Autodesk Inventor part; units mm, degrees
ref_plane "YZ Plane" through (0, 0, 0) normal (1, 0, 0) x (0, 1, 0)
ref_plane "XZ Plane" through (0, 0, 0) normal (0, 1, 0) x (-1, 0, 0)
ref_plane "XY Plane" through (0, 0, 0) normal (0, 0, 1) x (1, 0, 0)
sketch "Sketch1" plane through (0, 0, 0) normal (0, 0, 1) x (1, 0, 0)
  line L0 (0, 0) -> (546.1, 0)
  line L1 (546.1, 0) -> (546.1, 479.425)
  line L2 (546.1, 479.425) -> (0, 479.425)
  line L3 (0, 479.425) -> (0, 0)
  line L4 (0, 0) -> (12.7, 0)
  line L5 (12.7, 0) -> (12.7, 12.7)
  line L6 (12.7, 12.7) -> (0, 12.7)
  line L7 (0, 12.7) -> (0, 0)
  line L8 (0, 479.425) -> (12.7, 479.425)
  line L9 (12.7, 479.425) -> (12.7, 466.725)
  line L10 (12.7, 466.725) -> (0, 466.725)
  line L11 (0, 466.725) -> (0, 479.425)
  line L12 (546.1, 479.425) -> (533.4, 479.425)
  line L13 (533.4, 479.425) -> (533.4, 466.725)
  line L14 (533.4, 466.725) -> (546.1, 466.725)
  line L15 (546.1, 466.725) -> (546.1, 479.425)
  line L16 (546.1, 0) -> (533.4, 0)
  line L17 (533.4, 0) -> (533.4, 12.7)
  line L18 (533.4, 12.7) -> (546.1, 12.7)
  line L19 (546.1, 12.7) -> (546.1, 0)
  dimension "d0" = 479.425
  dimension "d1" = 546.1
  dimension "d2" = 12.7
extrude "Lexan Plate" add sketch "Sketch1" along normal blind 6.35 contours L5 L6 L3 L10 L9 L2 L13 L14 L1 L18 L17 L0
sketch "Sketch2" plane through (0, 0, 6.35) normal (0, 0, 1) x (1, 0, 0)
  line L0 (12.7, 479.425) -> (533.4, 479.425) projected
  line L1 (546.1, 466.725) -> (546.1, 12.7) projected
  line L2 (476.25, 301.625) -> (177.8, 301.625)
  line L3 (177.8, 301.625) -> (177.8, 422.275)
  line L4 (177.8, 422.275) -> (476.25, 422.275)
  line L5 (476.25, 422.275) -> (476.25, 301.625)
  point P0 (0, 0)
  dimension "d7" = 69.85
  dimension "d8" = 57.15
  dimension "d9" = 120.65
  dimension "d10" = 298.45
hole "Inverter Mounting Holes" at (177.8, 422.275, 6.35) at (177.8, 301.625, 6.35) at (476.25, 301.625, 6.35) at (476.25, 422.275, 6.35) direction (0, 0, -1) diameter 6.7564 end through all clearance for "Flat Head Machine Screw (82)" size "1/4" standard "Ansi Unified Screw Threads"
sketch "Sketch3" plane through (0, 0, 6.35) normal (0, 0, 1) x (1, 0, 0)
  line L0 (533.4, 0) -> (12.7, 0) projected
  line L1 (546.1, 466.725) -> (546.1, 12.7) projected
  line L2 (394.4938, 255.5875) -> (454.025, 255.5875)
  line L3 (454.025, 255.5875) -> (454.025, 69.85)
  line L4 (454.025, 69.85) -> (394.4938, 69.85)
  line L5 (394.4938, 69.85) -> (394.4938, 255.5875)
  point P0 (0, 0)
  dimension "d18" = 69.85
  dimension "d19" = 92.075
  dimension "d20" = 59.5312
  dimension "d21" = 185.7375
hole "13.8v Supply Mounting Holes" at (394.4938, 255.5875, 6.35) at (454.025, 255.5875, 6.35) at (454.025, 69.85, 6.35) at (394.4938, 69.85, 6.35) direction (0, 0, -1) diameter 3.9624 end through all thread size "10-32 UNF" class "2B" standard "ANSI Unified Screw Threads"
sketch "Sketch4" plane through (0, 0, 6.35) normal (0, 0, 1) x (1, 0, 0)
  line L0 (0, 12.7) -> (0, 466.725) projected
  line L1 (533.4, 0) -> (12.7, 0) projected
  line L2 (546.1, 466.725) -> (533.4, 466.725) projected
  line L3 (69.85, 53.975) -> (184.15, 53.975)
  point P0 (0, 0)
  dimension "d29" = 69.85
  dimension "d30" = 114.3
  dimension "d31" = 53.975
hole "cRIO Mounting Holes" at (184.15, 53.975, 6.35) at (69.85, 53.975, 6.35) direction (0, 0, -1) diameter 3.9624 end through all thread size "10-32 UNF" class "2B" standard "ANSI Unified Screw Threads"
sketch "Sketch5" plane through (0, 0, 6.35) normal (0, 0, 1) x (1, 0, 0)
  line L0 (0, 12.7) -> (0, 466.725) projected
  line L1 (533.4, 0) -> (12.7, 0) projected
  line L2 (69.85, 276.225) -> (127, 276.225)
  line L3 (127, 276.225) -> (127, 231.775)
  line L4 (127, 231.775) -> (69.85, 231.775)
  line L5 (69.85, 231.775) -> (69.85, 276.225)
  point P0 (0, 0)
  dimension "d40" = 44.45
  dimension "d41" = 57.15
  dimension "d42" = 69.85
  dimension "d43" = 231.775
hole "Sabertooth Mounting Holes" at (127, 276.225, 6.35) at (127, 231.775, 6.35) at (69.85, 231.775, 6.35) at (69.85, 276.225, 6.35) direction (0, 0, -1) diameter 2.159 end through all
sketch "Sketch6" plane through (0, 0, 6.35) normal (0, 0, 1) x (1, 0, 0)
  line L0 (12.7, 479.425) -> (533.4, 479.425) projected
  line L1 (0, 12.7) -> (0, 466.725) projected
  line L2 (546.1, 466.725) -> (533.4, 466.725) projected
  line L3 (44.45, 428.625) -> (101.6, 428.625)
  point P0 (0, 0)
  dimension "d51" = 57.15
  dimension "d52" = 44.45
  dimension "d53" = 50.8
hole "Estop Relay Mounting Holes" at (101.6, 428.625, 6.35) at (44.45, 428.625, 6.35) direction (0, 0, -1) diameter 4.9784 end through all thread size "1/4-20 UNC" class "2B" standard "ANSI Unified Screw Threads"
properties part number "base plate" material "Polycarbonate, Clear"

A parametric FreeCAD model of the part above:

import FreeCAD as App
import Part
import Sketcher
from FreeCAD import Vector
Q = App.Units.Quantity


def add_polygon(sketch, points):
    """Adds a closed chain of lines whose ends are joined by coincident constraints."""
    first, n = sketch.GeometryCount, len(points)
    for a, b in zip(points, points[1:] + points[:1]):
        sketch.addGeometry(Part.LineSegment(App.Vector(*a, 0), App.Vector(*b, 0)), False)
    for i in range(n):
        sketch.addConstraint(Sketcher.Constraint("Coincident", first + i, 2, first + (i + 1) % n, 1))

doc = App.newDocument("Part")
params = doc.addObject("Spreadsheet::Sheet", "Params")
for row, (alias, value) in enumerate([
    ("sketch1_width", "0.5 in"),
    ("pad1_length", "0.25 in"),
    ("sketch2_diameter", "0.266 in"),
    ("hole_diameter", "0.266 in"),
    ("sketch3_diameter", "0.156 in"),
    ("hole2_diameter", "0.156 in"),
    ("sketch4_diameter", "0.156 in"),
    ("hole3_diameter", "0.156 in"),
    ("sketch5_diameter", "0.085 in"),
    ("hole4_diameter", "0.085 in"),
    ("sketch6_diameter", "0.196 in"),
    ("hole5_diameter", "0.196 in"),
], start=1):
    params.set(f"A{row}", alias)
    params.set(f"B{row}", "=" + value)
    params.setAlias(f"B{row}", alias)

body = doc.addObject("PartDesign::Body", "Body")

# Sketch on XY plane
sketch1 = doc.addObject("Sketcher::SketchObject", "Sketch")
body.addObject(sketch1)
sketch1.AttachmentSupport = (doc.XY_Plane, [""])
sketch1.MapMode = "FlatFace"
add_polygon(sketch1, [(12.7, 12.7), (12.7, 0), (533.4, 0), (533.4, 12.7), (546.1, 12.7), (546.1, 466.725), (533.4, 466.725), (533.4, 479.425), (12.7, 479.425), (12.7, 466.725), (0, 466.725), (0, 12.7)])  # lines 0-11
sketch1.addConstraint([
    Sketcher.Constraint("Vertical", 0),
    Sketcher.Constraint("Horizontal", 1),
    Sketcher.Constraint("Vertical", 2),
    Sketcher.Constraint("Horizontal", 3),
    Sketcher.Constraint("Vertical", 4),
    Sketcher.Constraint("Horizontal", 5),
    Sketcher.Constraint("Vertical", 6),
    Sketcher.Constraint("Horizontal", 7),
    Sketcher.Constraint("Vertical", 8),
    Sketcher.Constraint("Horizontal", 9),
    Sketcher.Constraint("Vertical", 10),
    Sketcher.Constraint("Horizontal", 11),
    Sketcher.Constraint("PointOnObject", 0, 2, -1),
    Sketcher.Constraint("PointOnObject", 9, 2, -2),
    Sketcher.Constraint("Horizontal", 5, 2, 8, 2),
    Sketcher.Constraint("Horizontal", 3, 2, 10, 2),
    Sketcher.Constraint("Vertical", 2, 2, 5, 2),
    Sketcher.Constraint("Vertical", 0, 2, 7, 2),
    Sketcher.Constraint("Equal", 5, 9),
    Sketcher.Constraint("Equal", 11, 0),
    Sketcher.Constraint("Equal", 2, 6),
    Sketcher.Constraint("DistanceX", 3, 1, 3, 2, Q("0.5 in")),
    Sketcher.Constraint("DistanceX", -1, 1, 3, 2, Q("21.5 in")),
    Sketcher.Constraint("DistanceY", -1, 1, 6, 2, Q("18.875 in")),
])
sketch1.setExpression("Constraints[33]", "Params.sketch1_width")
pad1 = doc.addObject("PartDesign::Pad", "Pad")
body.addObject(pad1)
pad1.Profile = sketch1
pad1.setExpression("Length", "Params.pad1_length")

# Sketch on XY plane
sketch2 = doc.addObject("Sketcher::SketchObject", "Sketch001")
body.addObject(sketch2)
sketch2.AttachmentSupport = (doc.XY_Plane, [""])
sketch2.MapMode = "FlatFace"
sketch2.AttachmentOffset = App.Placement(Vector(0, 0, 0.25 * 25.4), App.Rotation())
sketch2.addGeometry([
    Part.Circle(Vector(177.8, 422.275, 0), Vector(0, 0, 1), 3.3782),
    Part.Circle(Vector(177.8, 301.625, 0), Vector(0, 0, 1), 3.3782),
    Part.Circle(Vector(476.25, 301.625, 0), Vector(0, 0, 1), 3.3782),
    Part.Circle(Vector(476.25, 422.275, 0), Vector(0, 0, 1), 3.3782),
], False)
sketch2.addConstraint([
    Sketcher.Constraint("Equal", 0, 1),
    Sketcher.Constraint("Equal", 1, 2),
    Sketcher.Constraint("Equal", 2, 3),
    Sketcher.Constraint("Horizontal", 1, 3, 2, 3),
    Sketcher.Constraint("Horizontal", 0, 3, 3, 3),
    Sketcher.Constraint("Vertical", 0, 3, 1, 3),
    Sketcher.Constraint("Vertical", 2, 3, 3, 3),
    Sketcher.Constraint("Diameter", 0, Q("0.266 in")),
    Sketcher.Constraint("DistanceX", -1, 1, 0, 3, Q("7 in")),
    Sketcher.Constraint("DistanceX", -1, 1, 2, 3, Q("18.75 in")),
    Sketcher.Constraint("DistanceY", 1, 3, 0, 3, Q("4.75 in")),
    Sketcher.Constraint("DistanceY", -1, 1, 0, 3, Q("16.625 in")),
])
sketch2.setExpression("Constraints[7]", "Params.sketch2_diameter")
doc.recompute()
hole = doc.addObject("PartDesign::Hole", "Hole")
body.addObject(hole)
hole.Profile = sketch2
hole.ThreadType = "None"
hole.setExpression("Diameter", "Params.hole_diameter")
hole.DepthType = "ThroughAll"

# Sketch on XY plane
sketch3 = doc.addObject("Sketcher::SketchObject", "Sketch002")
body.addObject(sketch3)
sketch3.AttachmentSupport = (doc.XY_Plane, [""])
sketch3.MapMode = "FlatFace"
sketch3.AttachmentOffset = App.Placement(Vector(0, 0, 0.25 * 25.4), App.Rotation())
sketch3.addGeometry([
    Part.Circle(Vector(394.4938, 255.5875, 0), Vector(0, 0, 1), 1.9812),
    Part.Circle(Vector(454.025, 255.5875, 0), Vector(0, 0, 1), 1.9812),
    Part.Circle(Vector(454.025, 69.85, 0), Vector(0, 0, 1), 1.9812),
    Part.Circle(Vector(394.4938, 69.85, 0), Vector(0, 0, 1), 1.9812),
], False)
sketch3.addConstraint([
    Sketcher.Constraint("Equal", 0, 1),
    Sketcher.Constraint("Equal", 1, 2),
    Sketcher.Constraint("Equal", 2, 3),
    Sketcher.Constraint("Horizontal", 0, 3, 1, 3),
    Sketcher.Constraint("Horizontal", 2, 3, 3, 3),
    Sketcher.Constraint("Vertical", 1, 3, 2, 3),
    Sketcher.Constraint("Vertical", 0, 3, 3, 3),
    Sketcher.Constraint("Diameter", 0, Q("0.156 in")),
    Sketcher.Constraint("DistanceY", -1, 1, 2, 3, Q("2.75 in")),
    Sketcher.Constraint("DistanceX", -1, 1, 0, 3, Q("15.531252 in")),
    Sketcher.Constraint("DistanceY", -1, 1, 0, 3, Q("10.0625 in")),
    Sketcher.Constraint("DistanceX", -1, 1, 1, 3, Q("17.875 in")),
])
sketch3.setExpression("Constraints[7]", "Params.sketch3_diameter")
doc.recompute()
hole2 = doc.addObject("PartDesign::Hole", "Hole001")
body.addObject(hole2)
hole2.Profile = sketch3
hole2.ThreadType = "None"
hole2.setExpression("Diameter", "Params.hole2_diameter")
hole2.DepthType = "ThroughAll"

# Sketch on XY plane
sketch4 = doc.addObject("Sketcher::SketchObject", "Sketch003")
body.addObject(sketch4)
sketch4.AttachmentSupport = (doc.XY_Plane, [""])
sketch4.MapMode = "FlatFace"
sketch4.AttachmentOffset = App.Placement(Vector(0, 0, 0.25 * 25.4), App.Rotation())
sketch4.addGeometry([
    Part.Circle(Vector(184.15, 53.975, 0), Vector(0, 0, 1), 1.9812),
    Part.Circle(Vector(69.85, 53.975, 0), Vector(0, 0, 1), 1.9812),
], False)
sketch4.addConstraint([
    Sketcher.Constraint("Equal", 0, 1),
    Sketcher.Constraint("Horizontal", 0, 3, 1, 3),
    Sketcher.Constraint("Diameter", 0, Q("0.156 in")),
    Sketcher.Constraint("DistanceX", 1, 3, 0, 3, Q("4.5 in")),
    Sketcher.Constraint("DistanceX", -1, 1, 0, 3, Q("7.25 in")),
    Sketcher.Constraint("DistanceY", -1, 1, 0, 3, Q("2.125 in")),
])
sketch4.setExpression("Constraints[2]", "Params.sketch4_diameter")
doc.recompute()
hole3 = doc.addObject("PartDesign::Hole", "Hole002")
body.addObject(hole3)
hole3.Profile = sketch4
hole3.ThreadType = "None"
hole3.setExpression("Diameter", "Params.hole3_diameter")
hole3.DepthType = "ThroughAll"

# Sketch on XY plane
sketch5 = doc.addObject("Sketcher::SketchObject", "Sketch004")
body.addObject(sketch5)
sketch5.AttachmentSupport = (doc.XY_Plane, [""])
sketch5.MapMode = "FlatFace"
sketch5.AttachmentOffset = App.Placement(Vector(0, 0, 0.25 * 25.4), App.Rotation())
sketch5.addGeometry([
    Part.Circle(Vector(127, 276.225, 0), Vector(0, 0, 1), 1.0795),
    Part.Circle(Vector(127, 231.775, 0), Vector(0, 0, 1), 1.0795),
    Part.Circle(Vector(69.85, 231.775, 0), Vector(0, 0, 1), 1.0795),
    Part.Circle(Vector(69.85, 276.225, 0), Vector(0, 0, 1), 1.0795),
], False)
sketch5.addConstraint([
    Sketcher.Constraint("Equal", 0, 1),
    Sketcher.Constraint("Equal", 1, 2),
    Sketcher.Constraint("Equal", 2, 3),
    Sketcher.Constraint("Horizontal", 1, 3, 2, 3),
    Sketcher.Constraint("Horizontal", 0, 3, 3, 3),
    Sketcher.Constraint("Vertical", 0, 3, 1, 3),
    Sketcher.Constraint("Vertical", 2, 3, 3, 3),
    Sketcher.Constraint("Diameter", 0, Q("0.085 in")),
    Sketcher.Constraint("DistanceX", -1, 1, 0, 3, Q("5 in")),
    Sketcher.Constraint("DistanceX", -1, 1, 2, 3, Q("2.75 in")),
    Sketcher.Constraint("DistanceY", 1, 3, 0, 3, Q("1.75 in")),
    Sketcher.Constraint("DistanceY", -1, 1, 0, 3, Q("10.875 in")),
])
sketch5.setExpression("Constraints[7]", "Params.sketch5_diameter")
doc.recompute()
hole4 = doc.addObject("PartDesign::Hole", "Hole003")
body.addObject(hole4)
hole4.Profile = sketch5
hole4.ThreadType = "None"
hole4.setExpression("Diameter", "Params.hole4_diameter")
hole4.DepthType = "ThroughAll"

# Sketch on XY plane
sketch6 = doc.addObject("Sketcher::SketchObject", "Sketch005")
body.addObject(sketch6)
sketch6.AttachmentSupport = (doc.XY_Plane, [""])
sketch6.MapMode = "FlatFace"
sketch6.AttachmentOffset = App.Placement(Vector(0, 0, 0.25 * 25.4), App.Rotation())
sketch6.addGeometry([
    Part.Circle(Vector(101.6, 428.625, 0), Vector(0, 0, 1), 2.4892),
    Part.Circle(Vector(44.45, 428.625, 0), Vector(0, 0, 1), 2.4892),
], False)
sketch6.addConstraint([
    Sketcher.Constraint("Equal", 0, 1),
    Sketcher.Constraint("Horizontal", 0, 3, 1, 3),
    Sketcher.Constraint("Diameter", 0, Q("0.196 in")),
    Sketcher.Constraint("DistanceX", -1, 1, 0, 3, Q("4 in")),
    Sketcher.Constraint("DistanceX", -1, 1, 1, 3, Q("1.75 in")),
    Sketcher.Constraint("DistanceY", -1, 1, 0, 3, Q("16.875 in")),
])
sketch6.setExpression("Constraints[2]", "Params.sketch6_diameter")
doc.recompute()
hole5 = doc.addObject("PartDesign::Hole", "Hole004")
body.addObject(hole5)
hole5.Profile = sketch6
hole5.ThreadType = "None"
hole5.setExpression("Diameter", "Params.hole5_diameter")
hole5.DepthType = "ThroughAll"

doc.recompute()
